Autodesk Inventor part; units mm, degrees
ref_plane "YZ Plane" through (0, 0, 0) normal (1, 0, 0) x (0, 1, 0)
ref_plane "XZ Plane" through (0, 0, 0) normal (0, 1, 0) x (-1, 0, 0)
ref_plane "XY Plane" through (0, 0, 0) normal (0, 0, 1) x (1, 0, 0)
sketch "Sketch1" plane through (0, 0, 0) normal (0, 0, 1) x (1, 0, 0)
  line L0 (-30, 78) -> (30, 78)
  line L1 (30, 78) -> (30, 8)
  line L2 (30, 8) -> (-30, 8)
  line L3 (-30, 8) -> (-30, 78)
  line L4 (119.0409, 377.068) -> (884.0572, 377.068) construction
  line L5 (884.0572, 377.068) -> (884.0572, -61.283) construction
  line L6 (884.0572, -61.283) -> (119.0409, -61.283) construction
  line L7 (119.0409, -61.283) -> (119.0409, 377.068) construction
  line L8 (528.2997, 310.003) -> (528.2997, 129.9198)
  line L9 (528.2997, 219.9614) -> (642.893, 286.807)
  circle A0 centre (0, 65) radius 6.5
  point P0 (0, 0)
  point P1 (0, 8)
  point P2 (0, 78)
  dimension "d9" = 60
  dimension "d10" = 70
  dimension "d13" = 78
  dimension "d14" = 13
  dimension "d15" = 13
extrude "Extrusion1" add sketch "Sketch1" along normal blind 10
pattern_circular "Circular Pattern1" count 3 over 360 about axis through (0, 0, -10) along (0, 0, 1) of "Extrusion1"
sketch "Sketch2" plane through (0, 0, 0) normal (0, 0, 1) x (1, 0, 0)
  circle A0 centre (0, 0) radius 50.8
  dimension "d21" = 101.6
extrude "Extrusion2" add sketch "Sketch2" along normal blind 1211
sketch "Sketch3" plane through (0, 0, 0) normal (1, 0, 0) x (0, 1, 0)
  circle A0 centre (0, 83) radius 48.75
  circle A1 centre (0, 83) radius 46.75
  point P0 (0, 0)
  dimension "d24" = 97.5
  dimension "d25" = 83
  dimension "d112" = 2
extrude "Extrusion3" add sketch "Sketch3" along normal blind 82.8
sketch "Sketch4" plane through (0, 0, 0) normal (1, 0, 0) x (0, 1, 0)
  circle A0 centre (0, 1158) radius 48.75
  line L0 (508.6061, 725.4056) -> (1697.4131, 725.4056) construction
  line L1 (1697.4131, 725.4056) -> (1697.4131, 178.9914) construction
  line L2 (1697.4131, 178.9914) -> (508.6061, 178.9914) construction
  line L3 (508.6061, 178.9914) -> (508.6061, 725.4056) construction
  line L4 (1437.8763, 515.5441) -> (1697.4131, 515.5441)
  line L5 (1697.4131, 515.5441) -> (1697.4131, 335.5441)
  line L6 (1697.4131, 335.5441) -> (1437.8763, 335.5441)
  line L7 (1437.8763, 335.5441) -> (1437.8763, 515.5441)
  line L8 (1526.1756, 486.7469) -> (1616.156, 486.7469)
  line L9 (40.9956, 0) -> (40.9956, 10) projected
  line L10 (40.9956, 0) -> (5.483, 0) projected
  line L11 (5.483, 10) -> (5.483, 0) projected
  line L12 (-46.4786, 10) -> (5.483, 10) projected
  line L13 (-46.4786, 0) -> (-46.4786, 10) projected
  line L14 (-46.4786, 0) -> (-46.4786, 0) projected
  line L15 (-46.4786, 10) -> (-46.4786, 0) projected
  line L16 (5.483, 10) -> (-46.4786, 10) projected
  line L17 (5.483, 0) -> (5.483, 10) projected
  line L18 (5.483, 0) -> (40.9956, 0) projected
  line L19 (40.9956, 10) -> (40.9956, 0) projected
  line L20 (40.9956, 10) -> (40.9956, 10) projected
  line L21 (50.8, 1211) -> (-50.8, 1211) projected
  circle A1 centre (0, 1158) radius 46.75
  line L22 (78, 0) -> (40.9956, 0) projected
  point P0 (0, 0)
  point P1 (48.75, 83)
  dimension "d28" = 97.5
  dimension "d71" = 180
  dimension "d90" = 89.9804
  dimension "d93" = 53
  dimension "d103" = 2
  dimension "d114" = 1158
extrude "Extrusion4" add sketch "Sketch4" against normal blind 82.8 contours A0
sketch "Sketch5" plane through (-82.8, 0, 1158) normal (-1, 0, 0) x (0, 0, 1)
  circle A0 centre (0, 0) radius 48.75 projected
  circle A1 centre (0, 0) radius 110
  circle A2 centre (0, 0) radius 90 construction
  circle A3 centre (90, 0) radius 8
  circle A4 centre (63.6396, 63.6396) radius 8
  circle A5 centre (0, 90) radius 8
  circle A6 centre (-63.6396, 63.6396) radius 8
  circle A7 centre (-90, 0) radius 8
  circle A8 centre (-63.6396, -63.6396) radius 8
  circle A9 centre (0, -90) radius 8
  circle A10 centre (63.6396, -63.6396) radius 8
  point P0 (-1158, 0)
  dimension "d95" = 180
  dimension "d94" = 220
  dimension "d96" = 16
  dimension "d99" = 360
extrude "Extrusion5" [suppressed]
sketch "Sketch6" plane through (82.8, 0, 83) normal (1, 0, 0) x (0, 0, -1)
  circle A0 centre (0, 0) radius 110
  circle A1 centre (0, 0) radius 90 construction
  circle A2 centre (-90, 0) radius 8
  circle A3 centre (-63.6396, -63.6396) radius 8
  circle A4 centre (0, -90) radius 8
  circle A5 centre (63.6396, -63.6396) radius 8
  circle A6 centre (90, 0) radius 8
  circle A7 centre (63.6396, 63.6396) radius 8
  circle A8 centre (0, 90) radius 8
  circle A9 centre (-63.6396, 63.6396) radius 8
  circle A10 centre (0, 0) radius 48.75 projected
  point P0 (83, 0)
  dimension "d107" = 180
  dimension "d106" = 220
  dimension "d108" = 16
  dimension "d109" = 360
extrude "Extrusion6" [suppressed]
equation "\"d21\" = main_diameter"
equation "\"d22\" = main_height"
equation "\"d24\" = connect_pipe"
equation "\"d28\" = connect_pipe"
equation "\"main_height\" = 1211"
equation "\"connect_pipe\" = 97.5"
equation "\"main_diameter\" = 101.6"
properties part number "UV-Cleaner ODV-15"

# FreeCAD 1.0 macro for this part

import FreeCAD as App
import Part
import Sketcher
from FreeCAD import Vector
Q = App.Units.Quantity

doc = App.newDocument("Part")
body = doc.addObject("PartDesign::Body", "Body")

# Sketch on XY plane
sketch1 = doc.addObject("Sketcher::SketchObject", "Sketch")
body.addObject(sketch1)
sketch1.AttachmentSupport = (doc.XY_Plane, [""])
sketch1.MapMode = "FlatFace"
sketch1.addGeometry([
    Part.LineSegment(Vector(30, 78, 0), Vector(-30, 78, 0)),  # 0
    Part.LineSegment(Vector(-30, 78, 0), Vector(-30, 8, 0)),  # 1
    Part.LineSegment(Vector(-30, 8, 0), Vector(30, 8, 0)),  # 2
    Part.LineSegment(Vector(30, 8, 0), Vector(30, 78, 0)),  # 3
    Part.Circle(Vector(0, 65, 0), Vector(0, 0, 1), 6.5),  # 4
], False)
sketch1.addConstraint([
    Sketcher.Constraint("Coincident", 0, 2, 1, 1),
    Sketcher.Constraint("Coincident", 1, 2, 2, 1),
    Sketcher.Constraint("Coincident", 2, 2, 3, 1),
    Sketcher.Constraint("Coincident", 3, 2, 0, 1),
    Sketcher.Constraint("Horizontal", 0),
    Sketcher.Constraint("Vertical", 1),
    Sketcher.Constraint("Horizontal", 2),
    Sketcher.Constraint("Vertical", 3),
    Sketcher.Constraint("PointOnObject", 4, 3, -2),
    Sketcher.Constraint("Diameter", 4, Q("13 mm")),
    Sketcher.Constraint("DistanceX", 0, 2, 0, 1, Q("60 mm")),
    Sketcher.Constraint("DistanceY", 1, 2, 1, 1, Q("70 mm")),
    Sketcher.Constraint("DistanceY", -1, 1, 0, 2, Q("78 mm")),
    Sketcher.Constraint("DistanceY", 4, 3, 0, 2, Q("13 mm")),
    Sketcher.Constraint("DistanceX", 0, 2, -1, 1, Q("30 mm")),
])
pad1 = doc.addObject("PartDesign::Pad", "Pad")
body.addObject(pad1)
pad1.Profile = sketch1
pad1.Length = 10
doc.recompute()

polarpattern = doc.addObject("PartDesign::PolarPattern", "PolarPattern")
body.addObject(polarpattern)
polarpattern.Originals = [pad1]
polarpattern.Axis = (doc.Z_Axis, [""])
polarpattern.Angle = 360
polarpattern.Occurrences = 3
body.Tip = polarpattern

# Sketch on XY plane
sketch2 = doc.addObject("Sketcher::SketchObject", "Sketch001")
body.addObject(sketch2)
sketch2.AttachmentSupport = (doc.XY_Plane, [""])
sketch2.MapMode = "FlatFace"
sketch2.addGeometry(Part.Circle(Vector(0, 0, 0), Vector(0, 0, 1), 50.8), False)
sketch2.addConstraint([
    Sketcher.Constraint("Coincident", 0, 3, -1, 1),
    Sketcher.Constraint("Diameter", 0, Q("101.6 mm")),
])
pad2 = doc.addObject("PartDesign::Pad", "Pad001")
body.addObject(pad2)
pad2.Profile = sketch2
pad2.Length = 1211

# Sketch on YZ plane
sketch3 = doc.addObject("Sketcher::SketchObject", "Sketch002")
body.addObject(sketch3)
sketch3.AttachmentSupport = (doc.YZ_Plane, [""])
sketch3.MapMode = "FlatFace"
sketch3.addGeometry([
    Part.Circle(Vector(0, 83, 0), Vector(0, 0, 1), 48.75),
    Part.Circle(Vector(0, 83, 0), Vector(0, 0, 1), 46.75),
], False)
sketch3.addConstraint([
    Sketcher.Constraint("Coincident", 1, 3, 0, 3),
    Sketcher.Constraint("PointOnObject", 0, 3, -2),
    Sketcher.Constraint("Diameter", 0, Q("97.5 mm")),
    Sketcher.Constraint("DistanceY", -1, 1, 0, 3, Q("83 mm")),
    Sketcher.Constraint("Diameter", 1, Q("93.5 mm")),
])
pad3 = doc.addObject("PartDesign::Pad", "Pad002")
body.addObject(pad3)
pad3.Profile = sketch3
pad3.Length = 82.8

# Sketch on YZ plane
sketch4 = doc.addObject("Sketcher::SketchObject", "Sketch003")
body.addObject(sketch4)
sketch4.AttachmentSupport = (doc.YZ_Plane, [""])
sketch4.MapMode = "FlatFace"
sketch4.addGeometry([
    Part.Circle(Vector(0, 1158, 0), Vector(0, 0, 1), 48.75),
    Part.Circle(Vector(0, 1158, 0), Vector(0, 0, 1), 46.75),
], False)
sketch4.addConstraint([
    Sketcher.Constraint("Coincident", 1, 3, 0, 3),
    Sketcher.Constraint("PointOnObject", 0, 3, -2),
    Sketcher.Constraint("Diameter", 0, Q("97.5 mm")),
    Sketcher.Constraint("DistanceY", -1, 1, 0, 3, Q("1158 mm")),
    Sketcher.Constraint("Diameter", 1, Q("93.5 mm")),
])
pad4 = doc.addObject("PartDesign::Pad", "Pad003")
body.addObject(pad4)
pad4.Profile = sketch4
pad4.Length = 82.8
pad4.Reversed = True

doc.recompute()
